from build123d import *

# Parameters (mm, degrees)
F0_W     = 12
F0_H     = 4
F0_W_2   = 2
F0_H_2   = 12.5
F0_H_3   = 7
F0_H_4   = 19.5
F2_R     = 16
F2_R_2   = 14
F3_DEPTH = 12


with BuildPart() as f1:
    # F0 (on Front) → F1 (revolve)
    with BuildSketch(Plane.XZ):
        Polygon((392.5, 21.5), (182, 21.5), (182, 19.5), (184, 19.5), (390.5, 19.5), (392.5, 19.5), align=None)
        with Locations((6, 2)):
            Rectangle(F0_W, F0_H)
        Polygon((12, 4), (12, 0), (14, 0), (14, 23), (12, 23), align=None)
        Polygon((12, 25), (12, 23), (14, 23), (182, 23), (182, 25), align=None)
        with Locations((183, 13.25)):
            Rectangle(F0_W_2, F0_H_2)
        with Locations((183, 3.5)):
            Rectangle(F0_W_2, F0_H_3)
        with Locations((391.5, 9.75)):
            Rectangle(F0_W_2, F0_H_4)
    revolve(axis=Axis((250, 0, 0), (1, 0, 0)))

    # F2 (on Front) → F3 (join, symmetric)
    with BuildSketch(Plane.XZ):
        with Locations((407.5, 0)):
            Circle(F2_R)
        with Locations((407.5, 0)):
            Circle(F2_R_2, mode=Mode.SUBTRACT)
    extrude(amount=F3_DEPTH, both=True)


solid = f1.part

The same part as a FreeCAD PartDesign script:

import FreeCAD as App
import Part
import Sketcher

V = App.Vector


def add_polygon(sketch, points):
    """Adds a closed chain of lines whose ends are joined by coincident constraints."""
    first, n = sketch.GeometryCount, len(points)
    for a, b in zip(points, points[1:] + points[:1]):
        sketch.addGeometry(Part.LineSegment(App.Vector(*a, 0), App.Vector(*b, 0)), False)
    for i in range(n):
        sketch.addConstraint(Sketcher.Constraint("Coincident", first + i, 2, first + (i + 1) % n, 1))

doc = App.newDocument("Part")
body = doc.addObject("PartDesign::Body", "Body")
body.AllowCompound = True

# Sketch on XZ plane
sketch1 = doc.addObject("Sketcher::SketchObject", "Sketch")
body.addObject(sketch1)
sketch1.AttachmentSupport = (doc.XZ_Plane, [""])
sketch1.MapMode = "FlatFace"
add_polygon(sketch1, [(392.5, 21.5), (182, 21.5), (182, 0), (184, 0), (184, 19.5), (390.5, 19.5), (390.5, 0), (392.5, 0)])  # lines 0-7
add_polygon(sketch1, [(0, 4), (0, 0), (14, 0), (14, 23), (182, 23), (182, 25), (12, 25), (12, 4)])  # lines 8-15
sketch1.addConstraint([
    Sketcher.Constraint("Horizontal", 0),
    Sketcher.Constraint("Vertical", 1),
    Sketcher.Constraint("Horizontal", 2),
    Sketcher.Constraint("Vertical", 3),
    Sketcher.Constraint("Horizontal", 4),
    Sketcher.Constraint("Vertical", 5),
    Sketcher.Constraint("Horizontal", 6),
    Sketcher.Constraint("Vertical", 7),
    Sketcher.Constraint("Vertical", 8),
    Sketcher.Constraint("Horizontal", 9),
    Sketcher.Constraint("Vertical", 10),
    Sketcher.Constraint("Horizontal", 11),
    Sketcher.Constraint("Vertical", 12),
    Sketcher.Constraint("Horizontal", 13),
    Sketcher.Constraint("Vertical", 14),
    Sketcher.Constraint("Horizontal", 15),
    Sketcher.Constraint("Coincident", 8, 2, -1, 1),
    Sketcher.Constraint("PointOnObject", 1, 2, -1),
    Sketcher.Constraint("PointOnObject", 5, 2, -1),
    Sketcher.Constraint("Vertical", 1, 2, 11, 2),
    Sketcher.Constraint("Equal", 2, 6),
    Sketcher.Constraint("Equal", 6, 12),
    Sketcher.Constraint("DistanceX", 2, 1, 2, 2, 2.0),
    Sketcher.Constraint("DistanceX", 9, 1, 9, 2, 14.0),
    Sketcher.Constraint("DistanceX", 11, 1, 11, 2, 168.0),
    Sketcher.Constraint("DistanceX", 13, 2, 13, 1, 170.0),
    Sketcher.Constraint("DistanceY", 8, 2, 8, 1, 4.0),
    Sketcher.Constraint("DistanceY", 10, 1, 10, 2, 23.0),
    Sketcher.Constraint("DistanceX", 0, 2, 0, 1, 210.5),
    Sketcher.Constraint("DistanceY", 1, 2, 1, 1, 21.5),
    Sketcher.Constraint("DistanceY", 3, 1, 3, 2, 19.5),
])
revolution = doc.addObject("PartDesign::Revolution", "Revolution")
body.addObject(revolution)
revolution.Profile = sketch1
revolution.ReferenceAxis = (sketch1, ["H_Axis"])
revolution.Angle = 360

# Sketch on XZ plane
sketch2 = doc.addObject("Sketcher::SketchObject", "Sketch001")
body.addObject(sketch2)
sketch2.AttachmentSupport = (doc.XZ_Plane, [""])
sketch2.MapMode = "FlatFace"
sketch2.addGeometry([
    Part.Circle(V(408, 0, 0), V(0, 0, 1), 16),
    Part.Circle(V(408, 0, 0), V(0, 0, 1), 14),
], False)
sketch2.addConstraint([
    Sketcher.Constraint("Coincident", 1, 3, 0, 3),
    Sketcher.Constraint("PointOnObject", 0, 3, -1),
    Sketcher.Constraint("Diameter", 0, 32.0),
    Sketcher.Constraint("Diameter", 1, 28.0),
    Sketcher.Constraint("DistanceX", -1, 1, 0, 3, 407.5),
])
pad1 = doc.addObject("PartDesign::Pad", "Pad")
body.addObject(pad1)
pad1.Profile = sketch2
pad1.Length = 24
pad1.Midplane = True

doc.recompute()
